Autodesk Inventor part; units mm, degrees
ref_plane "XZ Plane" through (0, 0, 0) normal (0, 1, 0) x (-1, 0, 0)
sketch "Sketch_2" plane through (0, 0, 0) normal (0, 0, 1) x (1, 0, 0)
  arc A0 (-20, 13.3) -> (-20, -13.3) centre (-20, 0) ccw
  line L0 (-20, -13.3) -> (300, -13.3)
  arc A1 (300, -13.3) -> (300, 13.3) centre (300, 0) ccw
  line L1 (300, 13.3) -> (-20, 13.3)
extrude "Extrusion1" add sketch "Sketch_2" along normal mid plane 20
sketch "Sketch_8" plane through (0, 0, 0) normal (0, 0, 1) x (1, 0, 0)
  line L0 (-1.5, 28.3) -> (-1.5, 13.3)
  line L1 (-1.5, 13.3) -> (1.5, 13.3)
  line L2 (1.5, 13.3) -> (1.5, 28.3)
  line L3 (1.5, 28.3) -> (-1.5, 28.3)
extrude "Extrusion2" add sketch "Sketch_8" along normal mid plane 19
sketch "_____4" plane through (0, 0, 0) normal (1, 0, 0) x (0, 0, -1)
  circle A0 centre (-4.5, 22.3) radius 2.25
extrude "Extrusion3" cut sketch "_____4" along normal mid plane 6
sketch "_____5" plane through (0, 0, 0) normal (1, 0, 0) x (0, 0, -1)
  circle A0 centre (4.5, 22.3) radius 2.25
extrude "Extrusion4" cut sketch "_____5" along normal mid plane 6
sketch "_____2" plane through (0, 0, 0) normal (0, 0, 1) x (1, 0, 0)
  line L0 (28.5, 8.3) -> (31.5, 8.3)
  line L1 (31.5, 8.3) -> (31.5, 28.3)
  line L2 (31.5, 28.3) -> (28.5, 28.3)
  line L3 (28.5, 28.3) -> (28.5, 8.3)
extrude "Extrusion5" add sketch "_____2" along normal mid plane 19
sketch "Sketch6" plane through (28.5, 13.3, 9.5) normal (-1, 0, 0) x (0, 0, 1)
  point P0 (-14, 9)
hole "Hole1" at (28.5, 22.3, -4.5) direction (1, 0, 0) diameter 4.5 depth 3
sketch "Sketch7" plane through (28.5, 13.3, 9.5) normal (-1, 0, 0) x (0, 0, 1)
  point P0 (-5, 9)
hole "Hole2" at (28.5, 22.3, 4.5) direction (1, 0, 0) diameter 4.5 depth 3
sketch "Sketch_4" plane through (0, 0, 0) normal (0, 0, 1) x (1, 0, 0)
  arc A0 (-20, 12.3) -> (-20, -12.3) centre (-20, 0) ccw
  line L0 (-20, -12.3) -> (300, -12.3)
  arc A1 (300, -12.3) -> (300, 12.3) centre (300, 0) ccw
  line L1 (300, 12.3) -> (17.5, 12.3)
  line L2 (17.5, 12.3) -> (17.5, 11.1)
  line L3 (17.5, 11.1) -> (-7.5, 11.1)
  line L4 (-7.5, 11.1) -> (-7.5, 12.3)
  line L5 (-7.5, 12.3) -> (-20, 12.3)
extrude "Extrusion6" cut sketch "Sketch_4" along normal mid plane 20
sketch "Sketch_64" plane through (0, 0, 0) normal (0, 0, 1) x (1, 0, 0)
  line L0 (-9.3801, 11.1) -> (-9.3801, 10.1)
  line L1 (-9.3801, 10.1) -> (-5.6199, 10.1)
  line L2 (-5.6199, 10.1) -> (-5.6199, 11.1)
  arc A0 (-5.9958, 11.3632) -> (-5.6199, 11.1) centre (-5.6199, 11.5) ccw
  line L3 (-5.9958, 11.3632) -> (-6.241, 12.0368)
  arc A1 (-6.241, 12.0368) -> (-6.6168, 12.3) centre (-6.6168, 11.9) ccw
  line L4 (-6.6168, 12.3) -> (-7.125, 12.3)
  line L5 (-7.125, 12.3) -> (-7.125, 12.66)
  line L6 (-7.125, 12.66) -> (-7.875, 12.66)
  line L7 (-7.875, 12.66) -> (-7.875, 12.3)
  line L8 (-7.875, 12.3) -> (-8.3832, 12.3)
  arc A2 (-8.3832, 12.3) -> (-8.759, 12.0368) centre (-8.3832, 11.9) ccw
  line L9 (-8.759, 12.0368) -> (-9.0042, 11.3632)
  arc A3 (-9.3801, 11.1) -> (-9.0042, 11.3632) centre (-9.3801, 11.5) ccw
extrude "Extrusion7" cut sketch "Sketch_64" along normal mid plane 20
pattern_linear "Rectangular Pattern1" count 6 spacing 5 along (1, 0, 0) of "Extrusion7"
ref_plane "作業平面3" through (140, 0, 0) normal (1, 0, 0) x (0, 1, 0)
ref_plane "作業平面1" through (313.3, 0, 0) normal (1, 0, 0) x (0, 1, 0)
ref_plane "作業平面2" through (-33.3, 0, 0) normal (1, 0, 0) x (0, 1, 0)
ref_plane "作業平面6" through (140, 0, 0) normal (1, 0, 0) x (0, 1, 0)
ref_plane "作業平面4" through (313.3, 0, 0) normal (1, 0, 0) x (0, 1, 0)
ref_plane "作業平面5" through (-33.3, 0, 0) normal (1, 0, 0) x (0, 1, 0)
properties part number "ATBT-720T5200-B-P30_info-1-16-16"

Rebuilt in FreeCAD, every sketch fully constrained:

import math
import FreeCAD as App
import Part
import Sketcher
from FreeCAD import Vector


def add_polygon(sketch, points):
    """Adds a closed chain of lines whose ends are joined by coincident constraints."""
    first, n = sketch.GeometryCount, len(points)
    for a, b in zip(points, points[1:] + points[:1]):
        sketch.addGeometry(Part.LineSegment(App.Vector(*a, 0), App.Vector(*b, 0)), False)
    for i in range(n):
        sketch.addConstraint(Sketcher.Constraint("Coincident", first + i, 2, first + (i + 1) % n, 1))

doc = App.newDocument("Part")
body = doc.addObject("PartDesign::Body", "Body")

sketch1 = doc.addObject("Sketcher::SketchObject", "Sketch")
body.addObject(sketch1)
sketch1.AttachmentSupport = (doc.XY_Plane, [""])
sketch1.MapMode = "FlatFace"
sketch1.addGeometry([
    Part.LineSegment(Vector(300, 13.3, 0), Vector(-20, 13.3, 0)),
    Part.ArcOfCircle(Part.Circle(Vector(-20, 0, 0), Vector(0, 0, 1), 13.3), math.radians(90), math.radians(270)),
    Part.LineSegment(Vector(-20, -13.3, 0), Vector(300, -13.3, 0)),
    Part.ArcOfCircle(Part.Circle(Vector(300, 0, 0), Vector(0, 0, 1), 13.3), math.radians(-90), math.radians(90)),
], False)
sketch1.addConstraint([
    Sketcher.Constraint("Tangent", 0, 2, 1, 1),
    Sketcher.Constraint("Tangent", 1, 2, 2, 1),
    Sketcher.Constraint("Tangent", 2, 2, 3, 1),
    Sketcher.Constraint("Tangent", 3, 2, 0, 1),
    Sketcher.Constraint("Horizontal", 0),
    Sketcher.Constraint("Horizontal", 2),
    Sketcher.Constraint("PointOnObject", 1, 3, -1),
    Sketcher.Constraint("Radius", 1, 13.3),
    Sketcher.Constraint("DistanceX", 0, 2, 0, 1, 320.0),
    Sketcher.Constraint("DistanceX", 1, 3, -1, 1, 20.0),
])
pad1 = doc.addObject("PartDesign::Pad", "Pad")
body.addObject(pad1)
pad1.Profile = sketch1
pad1.Length = 20
pad1.Midplane = True

sketch2 = doc.addObject("Sketcher::SketchObject", "Sketch001")
body.addObject(sketch2)
sketch2.AttachmentSupport = (doc.XY_Plane, [""])
sketch2.MapMode = "FlatFace"
add_polygon(sketch2, [(1.5, 28.3), (-1.5, 28.3), (-1.5, 13.3), (1.5, 13.3)])
sketch2.addConstraint([
    Sketcher.Constraint("Horizontal", 0),
    Sketcher.Constraint("Vertical", 1),
    Sketcher.Constraint("Horizontal", 2),
    Sketcher.Constraint("Vertical", 3),
    Sketcher.Constraint("DistanceX", 0, 2, 0, 1, 3.0),
    Sketcher.Constraint("DistanceY", 1, 2, 1, 1, 15.0),
    Sketcher.Constraint("DistanceX", 0, 2, -1, 1, 1.5),
    Sketcher.Constraint("DistanceY", -1, 1, 0, 2, 28.3),
])
pad2 = doc.addObject("PartDesign::Pad", "Pad001")
body.addObject(pad2)
pad2.Profile = sketch2
pad2.Length = 19
pad2.Midplane = True

sketch3 = doc.addObject("Sketcher::SketchObject", "Sketch002")
body.addObject(sketch3)
sketch3.AttachmentSupport = (doc.YZ_Plane, [""])
sketch3.MapMode = "FlatFace"
sketch3.addGeometry(Part.Circle(Vector(22.3, 4.5, 0), Vector(0, 0, 1), 2.25), False)
sketch3.addConstraint([
    Sketcher.Constraint("Diameter", 0, 4.5),
    Sketcher.Constraint("DistanceX", -1, 1, 0, 3, 22.3),
    Sketcher.Constraint("DistanceY", -1, 1, 0, 3, 4.5),
])
pocket1 = doc.addObject("PartDesign::Pocket", "Pocket")
body.addObject(pocket1)
pocket1.Profile = sketch3
pocket1.Length = 6
pocket1.Midplane = True

sketch4 = doc.addObject("Sketcher::SketchObject", "Sketch003")
body.addObject(sketch4)
sketch4.AttachmentSupport = (doc.YZ_Plane, [""])
sketch4.MapMode = "FlatFace"
sketch4.addGeometry(Part.Circle(Vector(22.3, -4.5, 0), Vector(0, 0, 1), 2.25), False)
sketch4.addConstraint([
    Sketcher.Constraint("Diameter", 0, 4.5),
    Sketcher.Constraint("DistanceX", -1, 1, 0, 3, 22.3),
    Sketcher.Constraint("DistanceY", 0, 3, -1, 1, 4.5),
])
pocket2 = doc.addObject("PartDesign::Pocket", "Pocket001")
body.addObject(pocket2)
pocket2.Profile = sketch4
pocket2.Length = 6
pocket2.Midplane = True

sketch5 = doc.addObject("Sketcher::SketchObject", "Sketch004")
body.addObject(sketch5)
sketch5.AttachmentSupport = (doc.XY_Plane, [""])
sketch5.MapMode = "FlatFace"
add_polygon(sketch5, [(28.5, 28.3), (28.5, 8.3), (31.5, 8.3), (31.5, 28.3)])
sketch5.addConstraint([
    Sketcher.Constraint("Vertical", 0),
    Sketcher.Constraint("Horizontal", 1),
    Sketcher.Constraint("Vertical", 2),
    Sketcher.Constraint("Horizontal", 3),
    Sketcher.Constraint("DistanceX", 1, 1, 1, 2, 3.0),
    Sketcher.Constraint("DistanceY", 0, 2, 0, 1, 20.0),
    Sketcher.Constraint("DistanceX", -1, 1, 0, 2, 28.5),
    Sketcher.Constraint("DistanceY", -1, 1, 0, 2, 8.3),
])
pad3 = doc.addObject("PartDesign::Pad", "Pad002")
body.addObject(pad3)
pad3.Profile = sketch5
pad3.Length = 19
pad3.Midplane = True

sketch6 = doc.addObject("Sketcher::SketchObject", "Sketch005")
body.addObject(sketch6)
sketch6.AttachmentSupport = (doc.YZ_Plane, [""])
sketch6.MapMode = "FlatFace"
sketch6.AttachmentOffset = App.Placement(Vector(0, 0, 28.5), App.Rotation())
sketch6.addGeometry(Part.Circle(Vector(22.3, -4.5, 0), Vector(0, 0, 1), 2.25), False)
sketch6.addConstraint([
    Sketcher.Constraint("Diameter", 0, 4.5),
    Sketcher.Constraint("DistanceX", -1, 1, 0, 3, 22.3),
    Sketcher.Constraint("DistanceY", 0, 3, -1, 1, 4.5),
])
doc.recompute()
hole = doc.addObject("PartDesign::Hole", "Hole")
body.addObject(hole)
hole.Profile = sketch6
hole.ThreadType = "None"
hole.Diameter = 4.5
hole.DepthType = "Dimension"
hole.Depth = 3
hole.DrillPoint = "Flat"
hole.Reversed = True

sketch7 = doc.addObject("Sketcher::SketchObject", "Sketch006")
body.addObject(sketch7)
sketch7.AttachmentSupport = (doc.YZ_Plane, [""])
sketch7.MapMode = "FlatFace"
sketch7.AttachmentOffset = App.Placement(Vector(0, 0, 28.5), App.Rotation())
sketch7.addGeometry(Part.Circle(Vector(22.3, 4.5, 0), Vector(0, 0, 1), 2.25), False)
sketch7.addConstraint([
    Sketcher.Constraint("Diameter", 0, 4.5),
    Sketcher.Constraint("DistanceX", -1, 1, 0, 3, 22.3),
    Sketcher.Constraint("DistanceY", -1, 1, 0, 3, 4.5),
])
doc.recompute()
hole2 = doc.addObject("PartDesign::Hole", "Hole001")
body.addObject(hole2)
hole2.Profile = sketch7
hole2.ThreadType = "None"
hole2.Diameter = 4.5
hole2.DepthType = "Dimension"
hole2.Depth = 3
hole2.DrillPoint = "Flat"
hole2.Reversed = True

sketch8 = doc.addObject("Sketcher::SketchObject", "Sketch007")
body.addObject(sketch8)
sketch8.AttachmentSupport = (doc.XY_Plane, [""])
sketch8.MapMode = "FlatFace"
sketch8.addGeometry([
    Part.LineSegment(Vector(-7.5, 12.3, 0), Vector(-20, 12.3, 0)),
    Part.ArcOfCircle(Part.Circle(Vector(-20, 0, 0), Vector(0, 0, 1), 12.3), math.radians(90), math.radians(270)),
    Part.LineSegment(Vector(-20, -12.3, 0), Vector(300, -12.3, 0)),
    Part.ArcOfCircle(Part.Circle(Vector(300, 0, 0), Vector(0, 0, 1), 12.3), math.radians(-90), math.radians(90)),
    Part.LineSegment(Vector(300, 12.3, 0), Vector(17.5, 12.3, 0)),
    Part.LineSegment(Vector(17.5, 12.3, 0), Vector(17.5, 11.1, 0)),
    Part.LineSegment(Vector(17.5, 11.1, 0), Vector(-7.5, 11.1, 0)),
    Part.LineSegment(Vector(-7.5, 11.1, 0), Vector(-7.5, 12.3, 0)),
], False)
sketch8.addConstraint([
    Sketcher.Constraint("Tangent", 0, 2, 1, 1),
    Sketcher.Constraint("Tangent", 1, 2, 2, 1),
    Sketcher.Constraint("Tangent", 2, 2, 3, 1),
    Sketcher.Constraint("Tangent", 3, 2, 4, 1),
    Sketcher.Constraint("Coincident", 4, 2, 5, 1),
    Sketcher.Constraint("Coincident", 5, 2, 6, 1),
    Sketcher.Constraint("Coincident", 6, 2, 7, 1),
    Sketcher.Constraint("Coincident", 7, 2, 0, 1),
    Sketcher.Constraint("Horizontal", 0),
    Sketcher.Constraint("Horizontal", 2),
    Sketcher.Constraint("Horizontal", 4),
    Sketcher.Constraint("Vertical", 5),
    Sketcher.Constraint("Horizontal", 6),
    Sketcher.Constraint("Vertical", 7),
    Sketcher.Constraint("Equal", 1, 3),
    Sketcher.Constraint("PointOnObject", 1, 3, -1),
    Sketcher.Constraint("Radius", 1, 12.3),
    Sketcher.Constraint("DistanceX", 2, 1, 2, 2, 320.0),
    Sketcher.Constraint("DistanceX", 6, 2, 6, 1, 25.0),
    Sketcher.Constraint("DistanceX", 0, 2, 0, 1, 12.5),
    Sketcher.Constraint("DistanceY", 5, 2, 5, 1, 1.2),
    Sketcher.Constraint("DistanceX", 1, 3, -1, 1, 20.0),
])
pocket3 = doc.addObject("PartDesign::Pocket", "Pocket002")
body.addObject(pocket3)
pocket3.Profile = sketch8
pocket3.Length = 20
pocket3.Midplane = True

sketch9 = doc.addObject("Sketcher::SketchObject", "Sketch008")
body.addObject(sketch9)
sketch9.AttachmentSupport = (doc.XY_Plane, [""])
sketch9.MapMode = "FlatFace"
sketch9.addGeometry([
    Part.ArcOfCircle(Part.Circle(Vector(-9.3801, 11.5, 0), Vector(0, 0, 1), 0.4), math.radians(-90), math.radians(-19.997791)),
    Part.LineSegment(Vector(-9.3801, 11.1, 0), Vector(-9.3801, 10.1, 0)),
    Part.LineSegment(Vector(-9.3801, 10.1, 0), Vector(-5.6199, 10.1, 0)),
    Part.LineSegment(Vector(-5.6199, 10.1, 0), Vector(-5.6199, 11.1, 0)),
    Part.ArcOfCircle(Part.Circle(Vector(-5.6199, 11.5, 0), Vector(0, 0, 1), 0.400019), math.radians(-160.002209), math.radians(-90)),
    Part.LineSegment(Vector(-5.9958, 11.3632, 0), Vector(-6.241, 12.0368, 0)),
    Part.ArcOfCircle(Part.Circle(Vector(-6.6168, 11.9, 0), Vector(0, 0, 1), 0.399925), math.radians(20.002691), math.radians(90)),
    Part.LineSegment(Vector(-6.6168, 12.3, 0), Vector(-7.125, 12.3, 0)),
    Part.LineSegment(Vector(-7.125, 12.3, 0), Vector(-7.125, 12.66, 0)),
    Part.LineSegment(Vector(-7.125, 12.66, 0), Vector(-7.875, 12.66, 0)),
    Part.LineSegment(Vector(-7.875, 12.66, 0), Vector(-7.875, 12.3, 0)),
    Part.LineSegment(Vector(-7.875, 12.3, 0), Vector(-8.3832, 12.3, 0)),
    Part.ArcOfCircle(Part.Circle(Vector(-8.3832, 11.9, 0), Vector(0, 0, 1), 0.4), math.radians(90), math.radians(159.997309)),
    Part.LineSegment(Vector(-8.759, 12.0368, 0), Vector(-9.0042, 11.3632, 0)),
], False)
sketch9.addConstraint([
    Sketcher.Constraint("Coincident", 0, 1, 1, 1),
    Sketcher.Constraint("Coincident", 1, 2, 2, 1),
    Sketcher.Constraint("Coincident", 2, 2, 3, 1),
    Sketcher.Constraint("Coincident", 3, 2, 4, 2),
    Sketcher.Constraint("Tangent", 4, 1, 5, 1),
    Sketcher.Constraint("Tangent", 5, 2, 6, 1),
    Sketcher.Constraint("Tangent", 6, 2, 7, 1),
    Sketcher.Constraint("Coincident", 7, 2, 8, 1),
    Sketcher.Constraint("Coincident", 8, 2, 9, 1),
    Sketcher.Constraint("Coincident", 9, 2, 10, 1),
    Sketcher.Constraint("Coincident", 10, 2, 11, 1),
    Sketcher.Constraint("Tangent", 11, 2, 12, 1),
    Sketcher.Constraint("Tangent", 12, 2, 13, 1),
    Sketcher.Constraint("Tangent", 13, 2, 0, 2),
    Sketcher.Constraint("Vertical", 1),
    Sketcher.Constraint("Horizontal", 2),
    Sketcher.Constraint("Vertical", 3),
    Sketcher.Constraint("Horizontal", 7),
    Sketcher.Constraint("Vertical", 8),
    Sketcher.Constraint("Horizontal", 9),
    Sketcher.Constraint("Vertical", 10),
    Sketcher.Constraint("Horizontal", 11),
    Sketcher.Constraint("Equal", 0, 4),
    Sketcher.Constraint("Equal", 4, 6),
    Sketcher.Constraint("Equal", 6, 12),
    Sketcher.Constraint("Horizontal", 0, 3, 4, 3),
    Sketcher.Constraint("Horizontal", 6, 3, 12, 3),
    Sketcher.Constraint("Horizontal", 5, 2, 12, 2),
    Sketcher.Constraint("Vertical", 4, 3, 2, 2),
    Sketcher.Constraint("Equal", 7, 11),
    Sketcher.Constraint("Radius", 0, 0.4),
    Sketcher.Constraint("DistanceY", 1, 2, 1, 1, 1.0),
    Sketcher.Constraint("DistanceX", 9, 2, 9, 1, 0.75),
    Sketcher.Constraint("DistanceY", 8, 1, 8, 2, 0.36),
    Sketcher.Constraint("DistanceY", -1, 1, 0, 3, 11.5),
    Sketcher.Constraint("DistanceY", -1, 1, 6, 3, 11.9),
    Sketcher.Constraint("DistanceX", 0, 3, -1, 1, 9.38),
    Sketcher.Constraint("DistanceX", 4, 3, -1, 1, 5.62),
    Sketcher.Constraint("DistanceX", 0, 1, -1, 1, 9.38),
    Sketcher.Constraint("DistanceX", 7, 2, 7, 1, 0.5082),
])
pocket4 = doc.addObject("PartDesign::Pocket", "Pocket003")
body.addObject(pocket4)
pocket4.Profile = sketch9
pocket4.Length = 20
pocket4.Midplane = True
doc.recompute()

linearpattern = doc.addObject("PartDesign::LinearPattern", "LinearPattern")
body.addObject(linearpattern)
linearpattern.Originals = [pocket4]
linearpattern.Direction = (doc.X_Axis, [""])
linearpattern.Mode = "offset"
linearpattern.Offset = 5
linearpattern.Occurrences = 6
body.Tip = linearpattern

doc.recompute()
